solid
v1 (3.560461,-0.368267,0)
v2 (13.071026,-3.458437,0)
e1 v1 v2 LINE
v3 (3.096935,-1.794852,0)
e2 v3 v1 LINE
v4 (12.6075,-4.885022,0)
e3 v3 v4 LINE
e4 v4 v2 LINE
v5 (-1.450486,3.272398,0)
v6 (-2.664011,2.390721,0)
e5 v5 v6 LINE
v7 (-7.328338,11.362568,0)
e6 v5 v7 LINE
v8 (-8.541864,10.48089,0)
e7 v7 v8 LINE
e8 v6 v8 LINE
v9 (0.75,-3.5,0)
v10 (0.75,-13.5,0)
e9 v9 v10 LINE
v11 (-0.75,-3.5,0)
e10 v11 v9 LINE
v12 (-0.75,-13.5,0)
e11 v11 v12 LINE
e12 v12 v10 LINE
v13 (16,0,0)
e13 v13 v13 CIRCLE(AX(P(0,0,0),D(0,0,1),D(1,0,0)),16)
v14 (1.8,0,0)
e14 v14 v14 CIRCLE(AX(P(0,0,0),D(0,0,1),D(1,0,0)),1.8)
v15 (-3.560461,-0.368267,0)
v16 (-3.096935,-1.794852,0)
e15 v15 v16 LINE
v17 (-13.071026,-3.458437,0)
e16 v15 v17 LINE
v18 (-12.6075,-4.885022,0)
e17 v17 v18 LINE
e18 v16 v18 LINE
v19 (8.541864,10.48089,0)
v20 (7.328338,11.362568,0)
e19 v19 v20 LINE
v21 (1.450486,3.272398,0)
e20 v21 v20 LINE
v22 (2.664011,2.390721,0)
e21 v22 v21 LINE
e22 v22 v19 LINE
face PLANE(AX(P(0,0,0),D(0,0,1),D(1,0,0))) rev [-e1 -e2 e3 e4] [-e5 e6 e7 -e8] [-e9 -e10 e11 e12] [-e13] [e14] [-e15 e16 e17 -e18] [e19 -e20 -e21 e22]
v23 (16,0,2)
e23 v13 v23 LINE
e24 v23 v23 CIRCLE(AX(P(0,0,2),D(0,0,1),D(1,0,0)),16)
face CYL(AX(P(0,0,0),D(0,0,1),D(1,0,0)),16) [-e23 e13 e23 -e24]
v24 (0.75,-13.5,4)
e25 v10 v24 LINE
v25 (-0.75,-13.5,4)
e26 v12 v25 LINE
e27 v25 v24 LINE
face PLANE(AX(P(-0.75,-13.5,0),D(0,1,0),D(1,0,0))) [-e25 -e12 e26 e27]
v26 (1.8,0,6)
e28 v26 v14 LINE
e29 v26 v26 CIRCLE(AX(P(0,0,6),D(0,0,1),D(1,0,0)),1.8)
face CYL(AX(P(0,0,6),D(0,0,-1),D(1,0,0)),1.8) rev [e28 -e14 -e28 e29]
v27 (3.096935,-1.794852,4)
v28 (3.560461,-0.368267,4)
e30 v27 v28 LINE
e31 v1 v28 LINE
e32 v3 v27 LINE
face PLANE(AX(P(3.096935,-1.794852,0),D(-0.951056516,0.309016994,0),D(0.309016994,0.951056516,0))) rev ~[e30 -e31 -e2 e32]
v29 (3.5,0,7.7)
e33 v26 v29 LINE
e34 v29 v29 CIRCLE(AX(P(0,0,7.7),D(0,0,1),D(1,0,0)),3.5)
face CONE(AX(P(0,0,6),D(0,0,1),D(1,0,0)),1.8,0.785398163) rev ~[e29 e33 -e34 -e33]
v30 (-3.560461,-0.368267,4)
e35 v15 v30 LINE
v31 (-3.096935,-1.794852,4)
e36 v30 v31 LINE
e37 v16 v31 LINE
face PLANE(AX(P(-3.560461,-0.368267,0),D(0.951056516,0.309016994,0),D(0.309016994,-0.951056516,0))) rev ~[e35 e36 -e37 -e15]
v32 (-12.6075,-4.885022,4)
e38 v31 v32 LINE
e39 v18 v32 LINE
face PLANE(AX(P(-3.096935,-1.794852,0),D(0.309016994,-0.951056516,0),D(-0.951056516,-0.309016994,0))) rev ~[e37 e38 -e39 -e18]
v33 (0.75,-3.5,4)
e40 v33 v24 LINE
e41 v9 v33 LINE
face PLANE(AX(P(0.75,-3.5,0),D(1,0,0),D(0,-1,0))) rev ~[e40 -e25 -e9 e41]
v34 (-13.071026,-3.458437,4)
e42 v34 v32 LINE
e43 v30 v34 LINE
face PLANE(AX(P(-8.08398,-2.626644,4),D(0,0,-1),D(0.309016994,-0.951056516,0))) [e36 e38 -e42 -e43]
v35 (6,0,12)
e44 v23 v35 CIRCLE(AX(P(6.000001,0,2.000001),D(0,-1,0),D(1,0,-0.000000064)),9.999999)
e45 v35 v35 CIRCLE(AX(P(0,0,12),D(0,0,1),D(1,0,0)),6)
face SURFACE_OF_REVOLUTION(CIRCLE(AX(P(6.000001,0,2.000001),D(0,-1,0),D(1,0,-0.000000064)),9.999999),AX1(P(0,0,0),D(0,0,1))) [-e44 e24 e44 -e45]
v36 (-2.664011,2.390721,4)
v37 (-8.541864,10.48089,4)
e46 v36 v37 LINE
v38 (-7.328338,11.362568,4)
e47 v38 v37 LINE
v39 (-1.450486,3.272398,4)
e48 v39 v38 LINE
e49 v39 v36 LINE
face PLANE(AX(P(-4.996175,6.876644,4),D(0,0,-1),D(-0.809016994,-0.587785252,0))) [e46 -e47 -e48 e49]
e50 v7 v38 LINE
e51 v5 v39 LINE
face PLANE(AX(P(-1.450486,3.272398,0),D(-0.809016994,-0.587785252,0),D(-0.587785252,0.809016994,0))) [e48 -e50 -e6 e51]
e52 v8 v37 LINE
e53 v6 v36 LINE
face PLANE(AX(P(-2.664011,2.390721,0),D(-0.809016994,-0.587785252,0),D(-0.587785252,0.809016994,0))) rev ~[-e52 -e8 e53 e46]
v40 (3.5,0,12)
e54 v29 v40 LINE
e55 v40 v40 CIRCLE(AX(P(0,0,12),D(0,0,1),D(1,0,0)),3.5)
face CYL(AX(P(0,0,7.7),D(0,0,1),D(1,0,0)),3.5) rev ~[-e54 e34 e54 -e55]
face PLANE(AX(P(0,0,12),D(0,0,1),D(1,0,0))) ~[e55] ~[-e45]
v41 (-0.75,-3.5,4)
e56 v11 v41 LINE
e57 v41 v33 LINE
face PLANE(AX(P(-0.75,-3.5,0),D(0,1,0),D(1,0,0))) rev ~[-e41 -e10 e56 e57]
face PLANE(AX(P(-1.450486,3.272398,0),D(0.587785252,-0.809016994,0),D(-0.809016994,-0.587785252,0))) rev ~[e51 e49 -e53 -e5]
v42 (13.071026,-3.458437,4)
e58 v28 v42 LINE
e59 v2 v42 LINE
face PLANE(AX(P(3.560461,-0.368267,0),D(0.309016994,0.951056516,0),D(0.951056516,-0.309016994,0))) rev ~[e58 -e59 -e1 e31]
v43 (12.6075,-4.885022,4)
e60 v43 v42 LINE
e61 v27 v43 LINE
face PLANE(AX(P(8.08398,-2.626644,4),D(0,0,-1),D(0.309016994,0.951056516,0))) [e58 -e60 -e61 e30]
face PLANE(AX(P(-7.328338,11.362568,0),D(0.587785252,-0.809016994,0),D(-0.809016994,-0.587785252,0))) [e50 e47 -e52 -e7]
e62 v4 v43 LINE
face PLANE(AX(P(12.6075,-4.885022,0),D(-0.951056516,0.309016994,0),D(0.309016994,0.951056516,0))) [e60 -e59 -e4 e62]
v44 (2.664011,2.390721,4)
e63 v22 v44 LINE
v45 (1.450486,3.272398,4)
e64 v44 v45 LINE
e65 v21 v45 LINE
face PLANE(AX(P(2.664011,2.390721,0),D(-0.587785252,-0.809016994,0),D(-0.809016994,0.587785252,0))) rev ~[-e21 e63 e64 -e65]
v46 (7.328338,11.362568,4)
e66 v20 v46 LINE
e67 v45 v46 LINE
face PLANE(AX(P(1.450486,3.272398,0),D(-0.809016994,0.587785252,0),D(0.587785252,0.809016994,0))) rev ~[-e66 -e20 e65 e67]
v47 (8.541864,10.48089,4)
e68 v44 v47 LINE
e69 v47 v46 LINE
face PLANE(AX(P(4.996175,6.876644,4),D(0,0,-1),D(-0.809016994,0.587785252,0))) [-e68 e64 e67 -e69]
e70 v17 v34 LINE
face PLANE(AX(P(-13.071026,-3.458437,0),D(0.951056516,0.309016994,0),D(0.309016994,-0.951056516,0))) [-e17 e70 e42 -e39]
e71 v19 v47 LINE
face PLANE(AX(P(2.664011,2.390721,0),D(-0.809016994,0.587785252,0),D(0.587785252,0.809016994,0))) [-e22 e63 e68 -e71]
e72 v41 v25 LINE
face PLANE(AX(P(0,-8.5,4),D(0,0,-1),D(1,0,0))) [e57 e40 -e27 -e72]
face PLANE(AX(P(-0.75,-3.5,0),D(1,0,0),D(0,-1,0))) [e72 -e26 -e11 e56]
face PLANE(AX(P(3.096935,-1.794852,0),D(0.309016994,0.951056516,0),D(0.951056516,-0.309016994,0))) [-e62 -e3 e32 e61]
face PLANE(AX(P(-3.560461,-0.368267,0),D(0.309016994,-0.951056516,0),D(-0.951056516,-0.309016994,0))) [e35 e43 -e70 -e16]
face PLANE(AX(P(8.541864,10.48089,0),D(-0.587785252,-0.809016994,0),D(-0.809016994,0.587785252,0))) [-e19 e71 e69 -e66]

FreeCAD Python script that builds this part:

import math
import FreeCAD as App
import Part
import Sketcher

V = App.Vector
Q = App.Units.Quantity


def add_polygon(sketch, points):
    """Adds a closed chain of lines whose ends are joined by coincident constraints."""
    first, n = sketch.GeometryCount, len(points)
    for a, b in zip(points, points[1:] + points[:1]):
        sketch.addGeometry(Part.LineSegment(App.Vector(*a, 0), App.Vector(*b, 0)), False)
    for i in range(n):
        sketch.addConstraint(Sketcher.Constraint("Coincident", first + i, 2, first + (i + 1) % n, 1))

doc = App.newDocument("Part")
params = doc.addObject("Spreadsheet::Sheet", "Params")
for row, (alias, value) in enumerate([
    ("sketch1_radius", "9.999999 mm"),
    ("sketch1_height", "2 mm"),
    ("sketch1_height2", "6 mm"),
    ("sketch1_width", "2.5 mm"),
    ("sketch1_width2", "14.2 mm"),
    ("revolution_angle", "360 deg"),
    ("sketch2_height", "10 mm"),
    ("sketch2_width", "1.5 mm"),
    ("pocket1_length", "4 mm"),
], start=1):
    params.set(f"A{row}", alias)
    params.set(f"B{row}", "=" + value)
    params.setAlias(f"B{row}", alias)

body = doc.addObject("PartDesign::Body", "Body")

# Sketch on XZ plane
sketch1 = body.newObject("Sketcher::SketchObject", "Sketch")
sketch1.AttachmentSupport = (doc.getObject("XZ_Plane"), [""])
sketch1.MapMode = "FlatFace"
sketch1.addGeometry([
    Part.LineSegment(V(16, 0, 0), V(16, 2, 0)),  # 0
    Part.ArcOfCircle(Part.Circle(V(6, 2, 0), V(0, 0, 1), 10), math.radians(0), math.radians(90)),  # 1
    Part.LineSegment(V(6, 12, 0), V(3.5, 12, 0)),  # 2
    Part.LineSegment(V(3.5, 12, 0), V(3.5, 7.7, 0)),  # 3
    Part.LineSegment(V(3.5, 7.7, 0), V(1.8, 6, 0)),  # 4
    Part.LineSegment(V(1.8, 6, 0), V(1.8, 0, 0)),  # 5
    Part.LineSegment(V(1.8, 0, 0), V(16, 0, 0)),  # 6
], False)
sketch1.addConstraint([
    Sketcher.Constraint("Tangent", 0, 2, 1, 1),
    Sketcher.Constraint("Tangent", 1, 2, 2, 1),
    Sketcher.Constraint("Coincident", 2, 2, 3, 1),
    Sketcher.Constraint("Coincident", 3, 2, 4, 1),
    Sketcher.Constraint("Coincident", 4, 2, 5, 1),
    Sketcher.Constraint("Coincident", 5, 2, 6, 1),
    Sketcher.Constraint("Coincident", 6, 2, 0, 1),
    Sketcher.Constraint("Vertical", 0),
    Sketcher.Constraint("Horizontal", 2),
    Sketcher.Constraint("Vertical", 3),
    Sketcher.Constraint("Vertical", 5),
    Sketcher.Constraint("Horizontal", 6),
    Sketcher.Constraint("PointOnObject", 5, 2, -1),
    Sketcher.Constraint("Radius", 1, Q("9.999999 mm")),
    Sketcher.Constraint("DistanceY", 0, 1, 0, 2, Q("2 mm")),
    Sketcher.Constraint("DistanceY", 5, 2, 5, 1, Q("6 mm")),
    Sketcher.Constraint("Angle", 4, Q("-135 deg")),
    Sketcher.Constraint("DistanceX", 2, 2, 2, 1, Q("2.5 mm")),
    Sketcher.Constraint("DistanceX", 6, 1, 6, 2, Q("14.2 mm")),
    Sketcher.Constraint("DistanceX", -1, 1, 1, 3, Q("6.000001 mm")),
])
sketch1.setExpression("Constraints[13]", "Params.sketch1_radius")
sketch1.setExpression("Constraints[14]", "Params.sketch1_height")
sketch1.setExpression("Constraints[15]", "Params.sketch1_height2")
sketch1.setExpression("Constraints[17]", "Params.sketch1_width")
sketch1.setExpression("Constraints[18]", "Params.sketch1_width2")
revolution = body.newObject("PartDesign::Revolution", "Revolution")
revolution.Profile = sketch1
revolution.ReferenceAxis = (sketch1, ["V_Axis"])
revolution.setExpression("Angle", "Params.revolution_angle")

# Sketch on XY plane
sketch2 = body.newObject("Sketcher::SketchObject", "Sketch001")
sketch2.AttachmentSupport = (doc.getObject("XY_Plane"), [""])
sketch2.MapMode = "FlatFace"
add_polygon(sketch2, [(-0.8, -13.5), (-0.8, -3.5), (0.8, -3.5), (0.8, -13.5)])  # lines 0-3
sketch2.addConstraint([
    Sketcher.Constraint("Vertical", 0),
    Sketcher.Constraint("Horizontal", 1),
    Sketcher.Constraint("Vertical", 2),
    Sketcher.Constraint("Horizontal", 3),
    Sketcher.Constraint("DistanceY", 0, 1, 0, 2, Q("10 mm")),
    Sketcher.Constraint("DistanceX", 1, 1, 1, 2, Q("1.5 mm")),
    Sketcher.Constraint("DistanceY", 0, 2, -1, 1, Q("3.5 mm")),
    Sketcher.Constraint("DistanceX", 0, 2, -1, 1, Q("0.75 mm")),
])
sketch2.setExpression("Constraints[8]", "Params.sketch2_height")
sketch2.setExpression("Constraints[9]", "Params.sketch2_width")
pocket1 = body.newObject("PartDesign::Pocket", "Pocket")
pocket1.Profile = sketch2
pocket1.setExpression("Length", "Params.pocket1_length")
pocket1.Reversed = True
doc.recompute()

polarpattern = body.newObject("PartDesign::PolarPattern", "PolarPattern")
polarpattern.Originals = [pocket1]
polarpattern.Axis = (doc.getObject("Z_Axis"), [""])
polarpattern.Angle = 360
polarpattern.Occurrences = 5
body.Tip = polarpattern

doc.recompute()
